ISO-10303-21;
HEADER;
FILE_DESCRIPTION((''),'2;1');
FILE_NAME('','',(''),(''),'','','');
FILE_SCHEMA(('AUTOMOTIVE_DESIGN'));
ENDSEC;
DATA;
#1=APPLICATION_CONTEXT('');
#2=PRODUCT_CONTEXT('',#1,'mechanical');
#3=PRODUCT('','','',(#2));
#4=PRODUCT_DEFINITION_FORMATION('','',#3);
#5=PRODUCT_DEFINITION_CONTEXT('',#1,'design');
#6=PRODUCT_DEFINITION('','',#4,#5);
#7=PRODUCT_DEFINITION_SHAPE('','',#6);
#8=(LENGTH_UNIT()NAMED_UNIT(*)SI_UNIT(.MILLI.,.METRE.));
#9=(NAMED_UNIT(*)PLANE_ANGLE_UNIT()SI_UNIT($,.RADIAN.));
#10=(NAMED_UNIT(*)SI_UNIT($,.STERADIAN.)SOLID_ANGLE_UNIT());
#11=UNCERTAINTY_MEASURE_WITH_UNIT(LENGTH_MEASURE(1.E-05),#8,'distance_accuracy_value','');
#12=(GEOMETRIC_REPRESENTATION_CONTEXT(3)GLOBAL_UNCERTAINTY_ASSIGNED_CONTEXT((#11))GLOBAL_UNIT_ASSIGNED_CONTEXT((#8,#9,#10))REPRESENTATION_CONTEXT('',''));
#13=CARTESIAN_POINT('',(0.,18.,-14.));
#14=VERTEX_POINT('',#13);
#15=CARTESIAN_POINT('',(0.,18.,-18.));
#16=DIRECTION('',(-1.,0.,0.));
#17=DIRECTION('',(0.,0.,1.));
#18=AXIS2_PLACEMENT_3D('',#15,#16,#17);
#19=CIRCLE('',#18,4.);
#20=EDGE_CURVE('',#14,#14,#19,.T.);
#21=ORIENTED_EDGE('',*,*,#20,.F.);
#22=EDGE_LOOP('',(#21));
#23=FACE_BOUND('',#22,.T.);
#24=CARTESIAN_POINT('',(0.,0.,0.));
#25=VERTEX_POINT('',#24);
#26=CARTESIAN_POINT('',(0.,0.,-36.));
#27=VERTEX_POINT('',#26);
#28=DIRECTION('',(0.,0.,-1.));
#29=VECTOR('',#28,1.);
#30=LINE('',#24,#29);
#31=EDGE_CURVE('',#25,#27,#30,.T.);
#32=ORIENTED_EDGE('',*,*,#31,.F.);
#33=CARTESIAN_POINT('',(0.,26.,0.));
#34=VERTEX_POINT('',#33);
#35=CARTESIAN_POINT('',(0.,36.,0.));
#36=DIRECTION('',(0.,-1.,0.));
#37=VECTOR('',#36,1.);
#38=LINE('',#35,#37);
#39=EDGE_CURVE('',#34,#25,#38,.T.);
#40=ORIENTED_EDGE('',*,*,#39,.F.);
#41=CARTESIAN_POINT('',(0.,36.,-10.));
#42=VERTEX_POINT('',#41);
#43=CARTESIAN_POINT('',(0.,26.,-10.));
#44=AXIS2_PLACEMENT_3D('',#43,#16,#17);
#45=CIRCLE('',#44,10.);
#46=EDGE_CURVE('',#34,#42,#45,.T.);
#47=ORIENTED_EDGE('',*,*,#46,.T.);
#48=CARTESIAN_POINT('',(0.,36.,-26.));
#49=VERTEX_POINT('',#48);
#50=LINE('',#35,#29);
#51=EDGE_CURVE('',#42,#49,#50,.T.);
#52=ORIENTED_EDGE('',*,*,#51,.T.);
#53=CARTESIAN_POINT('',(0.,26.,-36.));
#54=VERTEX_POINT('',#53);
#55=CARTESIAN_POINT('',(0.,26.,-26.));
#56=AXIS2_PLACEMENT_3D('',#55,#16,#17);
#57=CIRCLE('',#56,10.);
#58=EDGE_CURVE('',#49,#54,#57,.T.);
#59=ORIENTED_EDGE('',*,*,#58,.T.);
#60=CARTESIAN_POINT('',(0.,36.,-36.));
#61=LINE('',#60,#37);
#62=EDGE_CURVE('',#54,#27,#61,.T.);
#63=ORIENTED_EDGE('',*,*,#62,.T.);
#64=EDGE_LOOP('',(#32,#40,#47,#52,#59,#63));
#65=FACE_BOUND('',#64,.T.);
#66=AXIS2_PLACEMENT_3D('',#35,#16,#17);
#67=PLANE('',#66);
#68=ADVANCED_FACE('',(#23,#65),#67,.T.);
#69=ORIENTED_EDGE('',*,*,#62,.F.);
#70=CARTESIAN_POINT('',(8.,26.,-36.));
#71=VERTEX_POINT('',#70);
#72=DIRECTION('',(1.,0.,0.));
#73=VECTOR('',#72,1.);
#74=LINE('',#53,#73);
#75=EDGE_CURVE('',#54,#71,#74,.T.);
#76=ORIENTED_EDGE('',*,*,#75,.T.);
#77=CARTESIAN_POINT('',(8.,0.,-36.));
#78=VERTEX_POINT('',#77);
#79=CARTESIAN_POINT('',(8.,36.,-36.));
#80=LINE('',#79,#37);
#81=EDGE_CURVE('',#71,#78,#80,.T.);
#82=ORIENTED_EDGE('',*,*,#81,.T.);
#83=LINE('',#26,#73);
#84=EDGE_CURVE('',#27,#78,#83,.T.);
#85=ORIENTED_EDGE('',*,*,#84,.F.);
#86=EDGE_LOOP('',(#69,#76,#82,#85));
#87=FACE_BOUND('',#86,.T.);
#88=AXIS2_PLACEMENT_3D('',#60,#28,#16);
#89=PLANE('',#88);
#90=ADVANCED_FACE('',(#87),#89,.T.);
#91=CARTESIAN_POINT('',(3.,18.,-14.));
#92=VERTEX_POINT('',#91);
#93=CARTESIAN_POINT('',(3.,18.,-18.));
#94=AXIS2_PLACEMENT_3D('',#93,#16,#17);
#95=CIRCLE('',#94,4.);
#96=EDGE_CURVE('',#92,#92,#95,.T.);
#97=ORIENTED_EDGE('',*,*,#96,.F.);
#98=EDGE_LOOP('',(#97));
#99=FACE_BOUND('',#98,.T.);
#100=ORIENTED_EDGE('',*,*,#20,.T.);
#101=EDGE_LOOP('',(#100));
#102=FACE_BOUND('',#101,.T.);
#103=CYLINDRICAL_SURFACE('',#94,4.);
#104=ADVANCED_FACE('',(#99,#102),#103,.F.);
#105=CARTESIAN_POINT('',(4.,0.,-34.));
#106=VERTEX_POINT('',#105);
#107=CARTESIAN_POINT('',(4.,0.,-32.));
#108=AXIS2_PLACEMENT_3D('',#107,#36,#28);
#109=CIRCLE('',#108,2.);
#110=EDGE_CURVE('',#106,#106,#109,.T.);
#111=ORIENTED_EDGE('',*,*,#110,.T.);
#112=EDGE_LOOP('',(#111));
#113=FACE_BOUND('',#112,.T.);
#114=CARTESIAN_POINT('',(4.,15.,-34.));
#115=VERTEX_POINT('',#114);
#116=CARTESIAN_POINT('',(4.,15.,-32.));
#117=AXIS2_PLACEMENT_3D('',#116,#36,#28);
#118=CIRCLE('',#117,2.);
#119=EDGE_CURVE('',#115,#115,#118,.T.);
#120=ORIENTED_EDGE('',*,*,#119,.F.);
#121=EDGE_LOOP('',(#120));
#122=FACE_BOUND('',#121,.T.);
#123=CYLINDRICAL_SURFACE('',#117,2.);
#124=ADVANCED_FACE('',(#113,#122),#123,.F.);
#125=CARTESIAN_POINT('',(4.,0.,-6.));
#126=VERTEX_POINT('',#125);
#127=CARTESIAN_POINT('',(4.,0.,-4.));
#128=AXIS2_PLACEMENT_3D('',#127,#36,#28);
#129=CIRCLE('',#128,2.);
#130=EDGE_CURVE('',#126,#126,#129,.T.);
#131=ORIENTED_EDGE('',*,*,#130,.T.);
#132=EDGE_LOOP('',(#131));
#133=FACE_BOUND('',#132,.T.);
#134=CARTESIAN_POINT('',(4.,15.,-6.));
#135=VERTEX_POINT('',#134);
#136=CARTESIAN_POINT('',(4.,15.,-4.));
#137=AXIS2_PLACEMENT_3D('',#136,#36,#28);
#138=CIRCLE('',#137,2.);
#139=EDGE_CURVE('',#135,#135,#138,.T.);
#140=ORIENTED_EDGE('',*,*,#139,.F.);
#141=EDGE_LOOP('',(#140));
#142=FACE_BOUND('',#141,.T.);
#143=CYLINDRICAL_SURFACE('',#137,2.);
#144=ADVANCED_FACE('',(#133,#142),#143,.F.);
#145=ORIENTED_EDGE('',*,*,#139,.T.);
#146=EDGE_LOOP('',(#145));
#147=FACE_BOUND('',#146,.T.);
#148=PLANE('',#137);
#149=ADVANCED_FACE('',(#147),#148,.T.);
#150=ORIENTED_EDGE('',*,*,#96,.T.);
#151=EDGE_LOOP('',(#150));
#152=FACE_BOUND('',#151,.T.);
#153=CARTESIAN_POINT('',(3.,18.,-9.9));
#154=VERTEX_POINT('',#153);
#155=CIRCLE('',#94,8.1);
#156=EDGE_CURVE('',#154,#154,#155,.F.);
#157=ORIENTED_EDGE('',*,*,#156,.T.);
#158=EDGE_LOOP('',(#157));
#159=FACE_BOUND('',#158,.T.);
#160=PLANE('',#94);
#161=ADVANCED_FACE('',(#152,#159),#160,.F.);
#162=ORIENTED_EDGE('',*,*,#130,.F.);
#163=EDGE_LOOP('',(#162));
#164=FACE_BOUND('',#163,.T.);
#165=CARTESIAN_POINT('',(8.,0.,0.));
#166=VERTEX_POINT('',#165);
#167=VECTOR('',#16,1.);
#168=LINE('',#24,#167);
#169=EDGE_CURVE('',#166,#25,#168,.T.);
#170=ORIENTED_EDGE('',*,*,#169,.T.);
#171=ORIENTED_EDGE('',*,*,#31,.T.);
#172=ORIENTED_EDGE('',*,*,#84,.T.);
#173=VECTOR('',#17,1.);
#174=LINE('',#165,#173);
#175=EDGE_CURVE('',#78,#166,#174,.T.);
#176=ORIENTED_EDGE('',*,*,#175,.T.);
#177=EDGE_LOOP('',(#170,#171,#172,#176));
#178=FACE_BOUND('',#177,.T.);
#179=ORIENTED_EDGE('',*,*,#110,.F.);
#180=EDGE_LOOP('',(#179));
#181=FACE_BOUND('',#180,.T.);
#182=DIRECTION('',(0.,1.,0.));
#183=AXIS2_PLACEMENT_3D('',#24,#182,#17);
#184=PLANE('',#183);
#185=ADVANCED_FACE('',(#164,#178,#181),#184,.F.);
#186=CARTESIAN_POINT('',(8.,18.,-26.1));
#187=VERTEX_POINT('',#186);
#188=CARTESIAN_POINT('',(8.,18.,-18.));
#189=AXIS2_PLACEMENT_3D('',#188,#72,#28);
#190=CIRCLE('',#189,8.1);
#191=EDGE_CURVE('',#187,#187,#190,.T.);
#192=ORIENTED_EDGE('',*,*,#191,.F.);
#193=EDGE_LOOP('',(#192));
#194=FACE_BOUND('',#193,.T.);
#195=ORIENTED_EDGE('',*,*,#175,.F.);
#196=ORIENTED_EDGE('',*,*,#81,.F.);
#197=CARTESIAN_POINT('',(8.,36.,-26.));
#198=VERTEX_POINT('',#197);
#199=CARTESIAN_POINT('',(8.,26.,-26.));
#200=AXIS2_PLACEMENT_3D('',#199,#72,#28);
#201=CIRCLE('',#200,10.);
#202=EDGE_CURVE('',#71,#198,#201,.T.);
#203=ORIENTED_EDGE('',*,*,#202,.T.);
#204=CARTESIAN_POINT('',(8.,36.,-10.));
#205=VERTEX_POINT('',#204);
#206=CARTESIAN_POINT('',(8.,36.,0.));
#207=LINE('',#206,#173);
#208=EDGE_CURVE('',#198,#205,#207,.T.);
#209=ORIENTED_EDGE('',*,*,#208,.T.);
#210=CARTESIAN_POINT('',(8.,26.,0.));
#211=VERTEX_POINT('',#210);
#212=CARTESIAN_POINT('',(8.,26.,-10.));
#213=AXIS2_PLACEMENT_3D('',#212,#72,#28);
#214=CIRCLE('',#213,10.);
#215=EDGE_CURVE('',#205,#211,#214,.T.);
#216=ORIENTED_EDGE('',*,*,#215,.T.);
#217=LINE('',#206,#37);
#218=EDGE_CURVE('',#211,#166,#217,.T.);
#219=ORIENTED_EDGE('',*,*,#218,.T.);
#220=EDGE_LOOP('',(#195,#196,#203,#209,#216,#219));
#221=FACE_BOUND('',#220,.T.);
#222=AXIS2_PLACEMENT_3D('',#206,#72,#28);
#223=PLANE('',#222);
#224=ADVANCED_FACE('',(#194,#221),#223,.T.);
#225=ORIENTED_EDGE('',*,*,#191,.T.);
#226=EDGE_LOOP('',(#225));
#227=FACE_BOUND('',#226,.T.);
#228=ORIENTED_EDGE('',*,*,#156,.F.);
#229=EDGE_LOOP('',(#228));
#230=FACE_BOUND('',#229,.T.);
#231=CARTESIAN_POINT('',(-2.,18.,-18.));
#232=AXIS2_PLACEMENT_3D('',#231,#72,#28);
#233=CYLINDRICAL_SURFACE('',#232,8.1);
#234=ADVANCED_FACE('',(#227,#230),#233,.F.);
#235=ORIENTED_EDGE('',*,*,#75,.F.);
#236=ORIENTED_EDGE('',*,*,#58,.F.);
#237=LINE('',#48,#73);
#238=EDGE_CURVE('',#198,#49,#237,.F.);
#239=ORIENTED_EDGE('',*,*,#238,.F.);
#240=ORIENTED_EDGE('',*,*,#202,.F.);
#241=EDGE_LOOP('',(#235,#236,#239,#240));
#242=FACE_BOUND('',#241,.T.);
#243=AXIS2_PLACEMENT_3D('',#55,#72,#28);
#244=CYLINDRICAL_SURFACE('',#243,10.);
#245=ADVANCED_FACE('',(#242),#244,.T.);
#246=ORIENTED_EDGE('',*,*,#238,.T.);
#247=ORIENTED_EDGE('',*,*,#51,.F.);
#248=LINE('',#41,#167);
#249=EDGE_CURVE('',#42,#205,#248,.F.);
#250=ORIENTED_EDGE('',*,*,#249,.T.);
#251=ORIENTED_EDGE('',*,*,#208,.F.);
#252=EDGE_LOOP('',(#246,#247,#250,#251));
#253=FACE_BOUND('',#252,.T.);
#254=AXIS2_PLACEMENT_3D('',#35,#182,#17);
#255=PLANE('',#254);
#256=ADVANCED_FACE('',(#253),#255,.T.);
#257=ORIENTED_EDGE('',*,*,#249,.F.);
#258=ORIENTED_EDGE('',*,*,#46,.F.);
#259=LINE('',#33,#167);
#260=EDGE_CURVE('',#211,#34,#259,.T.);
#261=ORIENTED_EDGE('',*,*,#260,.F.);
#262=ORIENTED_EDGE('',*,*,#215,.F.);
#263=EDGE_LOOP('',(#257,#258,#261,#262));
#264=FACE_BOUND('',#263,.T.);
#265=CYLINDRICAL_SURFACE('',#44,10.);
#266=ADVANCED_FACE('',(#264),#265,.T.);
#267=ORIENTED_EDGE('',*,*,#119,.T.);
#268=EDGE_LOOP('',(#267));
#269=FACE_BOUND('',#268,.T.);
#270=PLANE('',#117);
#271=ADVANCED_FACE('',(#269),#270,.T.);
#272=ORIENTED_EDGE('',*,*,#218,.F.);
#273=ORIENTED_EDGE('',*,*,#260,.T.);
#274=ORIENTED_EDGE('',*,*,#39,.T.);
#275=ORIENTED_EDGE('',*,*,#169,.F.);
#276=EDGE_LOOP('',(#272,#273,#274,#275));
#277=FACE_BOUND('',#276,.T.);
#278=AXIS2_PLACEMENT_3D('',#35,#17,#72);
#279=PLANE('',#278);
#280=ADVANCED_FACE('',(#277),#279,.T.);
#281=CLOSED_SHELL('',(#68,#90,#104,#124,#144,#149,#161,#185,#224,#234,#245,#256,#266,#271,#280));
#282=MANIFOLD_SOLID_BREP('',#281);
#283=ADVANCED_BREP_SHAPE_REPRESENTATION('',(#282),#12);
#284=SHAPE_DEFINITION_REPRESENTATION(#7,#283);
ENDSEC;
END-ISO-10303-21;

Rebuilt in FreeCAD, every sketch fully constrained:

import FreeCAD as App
import Part
import Sketcher
from FreeCAD import Vector
Q = App.Units.Quantity


def edges_at(feature, points):
    """Names of the edges that pass closest to the given points."""
    edges = feature.Shape.Edges
    near = lambda p: min(range(len(edges)), key=lambda i: edges[i].distToShape(Part.Vertex(*p))[0])
    return sorted({f"Edge{near(p) + 1}" for p in points})

doc = App.newDocument("Part")
params = doc.addObject("Spreadsheet::Sheet", "Params")
for row, (alias, value) in enumerate([
    ("sketch1_width", "8 mm"),
    ("sketch1_height", "36 mm"),
    ("pad1_length", "36 mm"),
    ("sketch2_diameter", "16.2 mm"),
    ("pocket1_length", "10 mm"),
    ("sketch3_diameter", "8 mm"),
    ("sketch3_diameter2", "16.2 mm"),
    ("pad2_length", "3 mm"),
    ("sketch4_diameter", "4 mm"),
    ("pocket2_length", "15 mm"),
    ("fillet_radius", "10 mm"),
], start=1):
    params.set(f"A{row}", alias)
    params.set(f"B{row}", "=" + value)
    params.setAlias(f"B{row}", alias)

body = doc.addObject("PartDesign::Body", "Body")

sketch1 = body.newObject("Sketcher::SketchObject", "Sketch")
sketch1.AttachmentSupport = (doc.getObject("XZ_Plane"), [""])
sketch1.MapMode = "FlatFace"
sketch1.addGeometry([
    Part.LineSegment(Vector(0, -36, 0), Vector(0, 0, 0)),
    Part.LineSegment(Vector(0, 0, 0), Vector(8, 0, 0)),
    Part.LineSegment(Vector(8, 0, 0), Vector(8, -36, 0)),
    Part.LineSegment(Vector(8, -36, 0), Vector(0, -36, 0)),
], False)
sketch1.addConstraint([
    Sketcher.Constraint("Coincident", 0, 2, 1, 1),
    Sketcher.Constraint("Coincident", 1, 2, 2, 1),
    Sketcher.Constraint("Coincident", 2, 2, 3, 1),
    Sketcher.Constraint("Coincident", 3, 2, 0, 1),
    Sketcher.Constraint("Vertical", 0),
    Sketcher.Constraint("Horizontal", 1),
    Sketcher.Constraint("Vertical", 2),
    Sketcher.Constraint("Horizontal", 3),
    Sketcher.Constraint("Coincident", 0, 2, -1, 1),
    Sketcher.Constraint("DistanceX", 1, 1, 1, 2, Q("8 mm")),
    Sketcher.Constraint("DistanceY", 0, 1, 0, 2, Q("36 mm")),
])
sketch1.setExpression("Constraints[9]", "Params.sketch1_width")
sketch1.setExpression("Constraints[10]", "Params.sketch1_height")
pad1 = body.newObject("PartDesign::Pad", "Pad")
pad1.Profile = sketch1
pad1.setExpression("Length", "Params.pad1_length")
pad1.Reversed = True

sketch2 = body.newObject("Sketcher::SketchObject", "Sketch001")
sketch2.AttachmentSupport = (doc.getObject("YZ_Plane"), [""])
sketch2.MapMode = "FlatFace"
sketch2.AttachmentOffset = App.Placement(Vector(0, 0, 8), App.Rotation())
sketch2.addGeometry(Part.Circle(Vector(18, -18, 0), Vector(0, 0, 1), 8.1), False)
sketch2.addConstraint([
    Sketcher.Constraint("Diameter", 0, Q("16.2 mm")),
    Sketcher.Constraint("DistanceX", -1, 1, 0, 3, Q("18 mm")),
    Sketcher.Constraint("DistanceY", 0, 3, -1, 1, Q("18 mm")),
])
sketch2.setExpression("Constraints[0]", "Params.sketch2_diameter")
pocket1 = body.newObject("PartDesign::Pocket", "Pocket")
pocket1.Profile = sketch2
pocket1.setExpression("Length", "Params.pocket1_length")

sketch3 = body.newObject("Sketcher::SketchObject", "Sketch002")
sketch3.AttachmentSupport = (doc.getObject("YZ_Plane"), [""])
sketch3.MapMode = "FlatFace"
sketch3.AttachmentOffset = App.Placement(Vector(0, 0, 3), App.Rotation())
sketch3.addGeometry([
    Part.Circle(Vector(18, -18, 0), Vector(0, 0, 1), 8.1),
    Part.Circle(Vector(18, -18, 0), Vector(0, 0, 1), 4),
], False)
sketch3.addConstraint([
    Sketcher.Constraint("Coincident", 1, 3, 0, 3),
    Sketcher.Constraint("Diameter", 1, Q("8 mm")),
    Sketcher.Constraint("Diameter", 0, Q("16.2 mm")),
    Sketcher.Constraint("DistanceX", -1, 1, 0, 3, Q("18 mm")),
    Sketcher.Constraint("DistanceY", 0, 3, -1, 1, Q("18 mm")),
])
sketch3.setExpression("Constraints[1]", "Params.sketch3_diameter")
sketch3.setExpression("Constraints[2]", "Params.sketch3_diameter2")
pad2 = body.newObject("PartDesign::Pad", "Pad001")
pad2.Profile = sketch3
pad2.setExpression("Length", "Params.pad2_length")
pad2.Reversed = True

sketch4 = body.newObject("Sketcher::SketchObject", "Sketch003")
sketch4.AttachmentSupport = (doc.getObject("XZ_Plane"), [""])
sketch4.MapMode = "FlatFace"
sketch4.addGeometry([
    Part.Circle(Vector(4, -4, 0), Vector(0, 0, 1), 2),
    Part.Circle(Vector(4, -32, 0), Vector(0, 0, 1), 2),
], False)
sketch4.addConstraint([
    Sketcher.Constraint("Equal", 0, 1),
    Sketcher.Constraint("Vertical", 0, 3, 1, 3),
    Sketcher.Constraint("Diameter", 0, Q("4 mm")),
    Sketcher.Constraint("DistanceX", -1, 1, 0, 3, Q("4 mm")),
    Sketcher.Constraint("DistanceY", 0, 3, -1, 1, Q("4 mm")),
    Sketcher.Constraint("DistanceY", 1, 3, -1, 1, Q("32 mm")),
])
sketch4.setExpression("Constraints[2]", "Params.sketch4_diameter")
pocket2 = body.newObject("PartDesign::Pocket", "Pocket001")
pocket2.Profile = sketch4
pocket2.setExpression("Length", "Params.pocket2_length")
doc.recompute()

fillet = body.newObject("PartDesign::Fillet", "Fillet")
fillet.Base = (pocket2, edges_at(pocket2, [(4, 36, -36), (4, 36, 0)]))
fillet.setExpression("Radius", "Params.fillet_radius")

doc.recompute()
